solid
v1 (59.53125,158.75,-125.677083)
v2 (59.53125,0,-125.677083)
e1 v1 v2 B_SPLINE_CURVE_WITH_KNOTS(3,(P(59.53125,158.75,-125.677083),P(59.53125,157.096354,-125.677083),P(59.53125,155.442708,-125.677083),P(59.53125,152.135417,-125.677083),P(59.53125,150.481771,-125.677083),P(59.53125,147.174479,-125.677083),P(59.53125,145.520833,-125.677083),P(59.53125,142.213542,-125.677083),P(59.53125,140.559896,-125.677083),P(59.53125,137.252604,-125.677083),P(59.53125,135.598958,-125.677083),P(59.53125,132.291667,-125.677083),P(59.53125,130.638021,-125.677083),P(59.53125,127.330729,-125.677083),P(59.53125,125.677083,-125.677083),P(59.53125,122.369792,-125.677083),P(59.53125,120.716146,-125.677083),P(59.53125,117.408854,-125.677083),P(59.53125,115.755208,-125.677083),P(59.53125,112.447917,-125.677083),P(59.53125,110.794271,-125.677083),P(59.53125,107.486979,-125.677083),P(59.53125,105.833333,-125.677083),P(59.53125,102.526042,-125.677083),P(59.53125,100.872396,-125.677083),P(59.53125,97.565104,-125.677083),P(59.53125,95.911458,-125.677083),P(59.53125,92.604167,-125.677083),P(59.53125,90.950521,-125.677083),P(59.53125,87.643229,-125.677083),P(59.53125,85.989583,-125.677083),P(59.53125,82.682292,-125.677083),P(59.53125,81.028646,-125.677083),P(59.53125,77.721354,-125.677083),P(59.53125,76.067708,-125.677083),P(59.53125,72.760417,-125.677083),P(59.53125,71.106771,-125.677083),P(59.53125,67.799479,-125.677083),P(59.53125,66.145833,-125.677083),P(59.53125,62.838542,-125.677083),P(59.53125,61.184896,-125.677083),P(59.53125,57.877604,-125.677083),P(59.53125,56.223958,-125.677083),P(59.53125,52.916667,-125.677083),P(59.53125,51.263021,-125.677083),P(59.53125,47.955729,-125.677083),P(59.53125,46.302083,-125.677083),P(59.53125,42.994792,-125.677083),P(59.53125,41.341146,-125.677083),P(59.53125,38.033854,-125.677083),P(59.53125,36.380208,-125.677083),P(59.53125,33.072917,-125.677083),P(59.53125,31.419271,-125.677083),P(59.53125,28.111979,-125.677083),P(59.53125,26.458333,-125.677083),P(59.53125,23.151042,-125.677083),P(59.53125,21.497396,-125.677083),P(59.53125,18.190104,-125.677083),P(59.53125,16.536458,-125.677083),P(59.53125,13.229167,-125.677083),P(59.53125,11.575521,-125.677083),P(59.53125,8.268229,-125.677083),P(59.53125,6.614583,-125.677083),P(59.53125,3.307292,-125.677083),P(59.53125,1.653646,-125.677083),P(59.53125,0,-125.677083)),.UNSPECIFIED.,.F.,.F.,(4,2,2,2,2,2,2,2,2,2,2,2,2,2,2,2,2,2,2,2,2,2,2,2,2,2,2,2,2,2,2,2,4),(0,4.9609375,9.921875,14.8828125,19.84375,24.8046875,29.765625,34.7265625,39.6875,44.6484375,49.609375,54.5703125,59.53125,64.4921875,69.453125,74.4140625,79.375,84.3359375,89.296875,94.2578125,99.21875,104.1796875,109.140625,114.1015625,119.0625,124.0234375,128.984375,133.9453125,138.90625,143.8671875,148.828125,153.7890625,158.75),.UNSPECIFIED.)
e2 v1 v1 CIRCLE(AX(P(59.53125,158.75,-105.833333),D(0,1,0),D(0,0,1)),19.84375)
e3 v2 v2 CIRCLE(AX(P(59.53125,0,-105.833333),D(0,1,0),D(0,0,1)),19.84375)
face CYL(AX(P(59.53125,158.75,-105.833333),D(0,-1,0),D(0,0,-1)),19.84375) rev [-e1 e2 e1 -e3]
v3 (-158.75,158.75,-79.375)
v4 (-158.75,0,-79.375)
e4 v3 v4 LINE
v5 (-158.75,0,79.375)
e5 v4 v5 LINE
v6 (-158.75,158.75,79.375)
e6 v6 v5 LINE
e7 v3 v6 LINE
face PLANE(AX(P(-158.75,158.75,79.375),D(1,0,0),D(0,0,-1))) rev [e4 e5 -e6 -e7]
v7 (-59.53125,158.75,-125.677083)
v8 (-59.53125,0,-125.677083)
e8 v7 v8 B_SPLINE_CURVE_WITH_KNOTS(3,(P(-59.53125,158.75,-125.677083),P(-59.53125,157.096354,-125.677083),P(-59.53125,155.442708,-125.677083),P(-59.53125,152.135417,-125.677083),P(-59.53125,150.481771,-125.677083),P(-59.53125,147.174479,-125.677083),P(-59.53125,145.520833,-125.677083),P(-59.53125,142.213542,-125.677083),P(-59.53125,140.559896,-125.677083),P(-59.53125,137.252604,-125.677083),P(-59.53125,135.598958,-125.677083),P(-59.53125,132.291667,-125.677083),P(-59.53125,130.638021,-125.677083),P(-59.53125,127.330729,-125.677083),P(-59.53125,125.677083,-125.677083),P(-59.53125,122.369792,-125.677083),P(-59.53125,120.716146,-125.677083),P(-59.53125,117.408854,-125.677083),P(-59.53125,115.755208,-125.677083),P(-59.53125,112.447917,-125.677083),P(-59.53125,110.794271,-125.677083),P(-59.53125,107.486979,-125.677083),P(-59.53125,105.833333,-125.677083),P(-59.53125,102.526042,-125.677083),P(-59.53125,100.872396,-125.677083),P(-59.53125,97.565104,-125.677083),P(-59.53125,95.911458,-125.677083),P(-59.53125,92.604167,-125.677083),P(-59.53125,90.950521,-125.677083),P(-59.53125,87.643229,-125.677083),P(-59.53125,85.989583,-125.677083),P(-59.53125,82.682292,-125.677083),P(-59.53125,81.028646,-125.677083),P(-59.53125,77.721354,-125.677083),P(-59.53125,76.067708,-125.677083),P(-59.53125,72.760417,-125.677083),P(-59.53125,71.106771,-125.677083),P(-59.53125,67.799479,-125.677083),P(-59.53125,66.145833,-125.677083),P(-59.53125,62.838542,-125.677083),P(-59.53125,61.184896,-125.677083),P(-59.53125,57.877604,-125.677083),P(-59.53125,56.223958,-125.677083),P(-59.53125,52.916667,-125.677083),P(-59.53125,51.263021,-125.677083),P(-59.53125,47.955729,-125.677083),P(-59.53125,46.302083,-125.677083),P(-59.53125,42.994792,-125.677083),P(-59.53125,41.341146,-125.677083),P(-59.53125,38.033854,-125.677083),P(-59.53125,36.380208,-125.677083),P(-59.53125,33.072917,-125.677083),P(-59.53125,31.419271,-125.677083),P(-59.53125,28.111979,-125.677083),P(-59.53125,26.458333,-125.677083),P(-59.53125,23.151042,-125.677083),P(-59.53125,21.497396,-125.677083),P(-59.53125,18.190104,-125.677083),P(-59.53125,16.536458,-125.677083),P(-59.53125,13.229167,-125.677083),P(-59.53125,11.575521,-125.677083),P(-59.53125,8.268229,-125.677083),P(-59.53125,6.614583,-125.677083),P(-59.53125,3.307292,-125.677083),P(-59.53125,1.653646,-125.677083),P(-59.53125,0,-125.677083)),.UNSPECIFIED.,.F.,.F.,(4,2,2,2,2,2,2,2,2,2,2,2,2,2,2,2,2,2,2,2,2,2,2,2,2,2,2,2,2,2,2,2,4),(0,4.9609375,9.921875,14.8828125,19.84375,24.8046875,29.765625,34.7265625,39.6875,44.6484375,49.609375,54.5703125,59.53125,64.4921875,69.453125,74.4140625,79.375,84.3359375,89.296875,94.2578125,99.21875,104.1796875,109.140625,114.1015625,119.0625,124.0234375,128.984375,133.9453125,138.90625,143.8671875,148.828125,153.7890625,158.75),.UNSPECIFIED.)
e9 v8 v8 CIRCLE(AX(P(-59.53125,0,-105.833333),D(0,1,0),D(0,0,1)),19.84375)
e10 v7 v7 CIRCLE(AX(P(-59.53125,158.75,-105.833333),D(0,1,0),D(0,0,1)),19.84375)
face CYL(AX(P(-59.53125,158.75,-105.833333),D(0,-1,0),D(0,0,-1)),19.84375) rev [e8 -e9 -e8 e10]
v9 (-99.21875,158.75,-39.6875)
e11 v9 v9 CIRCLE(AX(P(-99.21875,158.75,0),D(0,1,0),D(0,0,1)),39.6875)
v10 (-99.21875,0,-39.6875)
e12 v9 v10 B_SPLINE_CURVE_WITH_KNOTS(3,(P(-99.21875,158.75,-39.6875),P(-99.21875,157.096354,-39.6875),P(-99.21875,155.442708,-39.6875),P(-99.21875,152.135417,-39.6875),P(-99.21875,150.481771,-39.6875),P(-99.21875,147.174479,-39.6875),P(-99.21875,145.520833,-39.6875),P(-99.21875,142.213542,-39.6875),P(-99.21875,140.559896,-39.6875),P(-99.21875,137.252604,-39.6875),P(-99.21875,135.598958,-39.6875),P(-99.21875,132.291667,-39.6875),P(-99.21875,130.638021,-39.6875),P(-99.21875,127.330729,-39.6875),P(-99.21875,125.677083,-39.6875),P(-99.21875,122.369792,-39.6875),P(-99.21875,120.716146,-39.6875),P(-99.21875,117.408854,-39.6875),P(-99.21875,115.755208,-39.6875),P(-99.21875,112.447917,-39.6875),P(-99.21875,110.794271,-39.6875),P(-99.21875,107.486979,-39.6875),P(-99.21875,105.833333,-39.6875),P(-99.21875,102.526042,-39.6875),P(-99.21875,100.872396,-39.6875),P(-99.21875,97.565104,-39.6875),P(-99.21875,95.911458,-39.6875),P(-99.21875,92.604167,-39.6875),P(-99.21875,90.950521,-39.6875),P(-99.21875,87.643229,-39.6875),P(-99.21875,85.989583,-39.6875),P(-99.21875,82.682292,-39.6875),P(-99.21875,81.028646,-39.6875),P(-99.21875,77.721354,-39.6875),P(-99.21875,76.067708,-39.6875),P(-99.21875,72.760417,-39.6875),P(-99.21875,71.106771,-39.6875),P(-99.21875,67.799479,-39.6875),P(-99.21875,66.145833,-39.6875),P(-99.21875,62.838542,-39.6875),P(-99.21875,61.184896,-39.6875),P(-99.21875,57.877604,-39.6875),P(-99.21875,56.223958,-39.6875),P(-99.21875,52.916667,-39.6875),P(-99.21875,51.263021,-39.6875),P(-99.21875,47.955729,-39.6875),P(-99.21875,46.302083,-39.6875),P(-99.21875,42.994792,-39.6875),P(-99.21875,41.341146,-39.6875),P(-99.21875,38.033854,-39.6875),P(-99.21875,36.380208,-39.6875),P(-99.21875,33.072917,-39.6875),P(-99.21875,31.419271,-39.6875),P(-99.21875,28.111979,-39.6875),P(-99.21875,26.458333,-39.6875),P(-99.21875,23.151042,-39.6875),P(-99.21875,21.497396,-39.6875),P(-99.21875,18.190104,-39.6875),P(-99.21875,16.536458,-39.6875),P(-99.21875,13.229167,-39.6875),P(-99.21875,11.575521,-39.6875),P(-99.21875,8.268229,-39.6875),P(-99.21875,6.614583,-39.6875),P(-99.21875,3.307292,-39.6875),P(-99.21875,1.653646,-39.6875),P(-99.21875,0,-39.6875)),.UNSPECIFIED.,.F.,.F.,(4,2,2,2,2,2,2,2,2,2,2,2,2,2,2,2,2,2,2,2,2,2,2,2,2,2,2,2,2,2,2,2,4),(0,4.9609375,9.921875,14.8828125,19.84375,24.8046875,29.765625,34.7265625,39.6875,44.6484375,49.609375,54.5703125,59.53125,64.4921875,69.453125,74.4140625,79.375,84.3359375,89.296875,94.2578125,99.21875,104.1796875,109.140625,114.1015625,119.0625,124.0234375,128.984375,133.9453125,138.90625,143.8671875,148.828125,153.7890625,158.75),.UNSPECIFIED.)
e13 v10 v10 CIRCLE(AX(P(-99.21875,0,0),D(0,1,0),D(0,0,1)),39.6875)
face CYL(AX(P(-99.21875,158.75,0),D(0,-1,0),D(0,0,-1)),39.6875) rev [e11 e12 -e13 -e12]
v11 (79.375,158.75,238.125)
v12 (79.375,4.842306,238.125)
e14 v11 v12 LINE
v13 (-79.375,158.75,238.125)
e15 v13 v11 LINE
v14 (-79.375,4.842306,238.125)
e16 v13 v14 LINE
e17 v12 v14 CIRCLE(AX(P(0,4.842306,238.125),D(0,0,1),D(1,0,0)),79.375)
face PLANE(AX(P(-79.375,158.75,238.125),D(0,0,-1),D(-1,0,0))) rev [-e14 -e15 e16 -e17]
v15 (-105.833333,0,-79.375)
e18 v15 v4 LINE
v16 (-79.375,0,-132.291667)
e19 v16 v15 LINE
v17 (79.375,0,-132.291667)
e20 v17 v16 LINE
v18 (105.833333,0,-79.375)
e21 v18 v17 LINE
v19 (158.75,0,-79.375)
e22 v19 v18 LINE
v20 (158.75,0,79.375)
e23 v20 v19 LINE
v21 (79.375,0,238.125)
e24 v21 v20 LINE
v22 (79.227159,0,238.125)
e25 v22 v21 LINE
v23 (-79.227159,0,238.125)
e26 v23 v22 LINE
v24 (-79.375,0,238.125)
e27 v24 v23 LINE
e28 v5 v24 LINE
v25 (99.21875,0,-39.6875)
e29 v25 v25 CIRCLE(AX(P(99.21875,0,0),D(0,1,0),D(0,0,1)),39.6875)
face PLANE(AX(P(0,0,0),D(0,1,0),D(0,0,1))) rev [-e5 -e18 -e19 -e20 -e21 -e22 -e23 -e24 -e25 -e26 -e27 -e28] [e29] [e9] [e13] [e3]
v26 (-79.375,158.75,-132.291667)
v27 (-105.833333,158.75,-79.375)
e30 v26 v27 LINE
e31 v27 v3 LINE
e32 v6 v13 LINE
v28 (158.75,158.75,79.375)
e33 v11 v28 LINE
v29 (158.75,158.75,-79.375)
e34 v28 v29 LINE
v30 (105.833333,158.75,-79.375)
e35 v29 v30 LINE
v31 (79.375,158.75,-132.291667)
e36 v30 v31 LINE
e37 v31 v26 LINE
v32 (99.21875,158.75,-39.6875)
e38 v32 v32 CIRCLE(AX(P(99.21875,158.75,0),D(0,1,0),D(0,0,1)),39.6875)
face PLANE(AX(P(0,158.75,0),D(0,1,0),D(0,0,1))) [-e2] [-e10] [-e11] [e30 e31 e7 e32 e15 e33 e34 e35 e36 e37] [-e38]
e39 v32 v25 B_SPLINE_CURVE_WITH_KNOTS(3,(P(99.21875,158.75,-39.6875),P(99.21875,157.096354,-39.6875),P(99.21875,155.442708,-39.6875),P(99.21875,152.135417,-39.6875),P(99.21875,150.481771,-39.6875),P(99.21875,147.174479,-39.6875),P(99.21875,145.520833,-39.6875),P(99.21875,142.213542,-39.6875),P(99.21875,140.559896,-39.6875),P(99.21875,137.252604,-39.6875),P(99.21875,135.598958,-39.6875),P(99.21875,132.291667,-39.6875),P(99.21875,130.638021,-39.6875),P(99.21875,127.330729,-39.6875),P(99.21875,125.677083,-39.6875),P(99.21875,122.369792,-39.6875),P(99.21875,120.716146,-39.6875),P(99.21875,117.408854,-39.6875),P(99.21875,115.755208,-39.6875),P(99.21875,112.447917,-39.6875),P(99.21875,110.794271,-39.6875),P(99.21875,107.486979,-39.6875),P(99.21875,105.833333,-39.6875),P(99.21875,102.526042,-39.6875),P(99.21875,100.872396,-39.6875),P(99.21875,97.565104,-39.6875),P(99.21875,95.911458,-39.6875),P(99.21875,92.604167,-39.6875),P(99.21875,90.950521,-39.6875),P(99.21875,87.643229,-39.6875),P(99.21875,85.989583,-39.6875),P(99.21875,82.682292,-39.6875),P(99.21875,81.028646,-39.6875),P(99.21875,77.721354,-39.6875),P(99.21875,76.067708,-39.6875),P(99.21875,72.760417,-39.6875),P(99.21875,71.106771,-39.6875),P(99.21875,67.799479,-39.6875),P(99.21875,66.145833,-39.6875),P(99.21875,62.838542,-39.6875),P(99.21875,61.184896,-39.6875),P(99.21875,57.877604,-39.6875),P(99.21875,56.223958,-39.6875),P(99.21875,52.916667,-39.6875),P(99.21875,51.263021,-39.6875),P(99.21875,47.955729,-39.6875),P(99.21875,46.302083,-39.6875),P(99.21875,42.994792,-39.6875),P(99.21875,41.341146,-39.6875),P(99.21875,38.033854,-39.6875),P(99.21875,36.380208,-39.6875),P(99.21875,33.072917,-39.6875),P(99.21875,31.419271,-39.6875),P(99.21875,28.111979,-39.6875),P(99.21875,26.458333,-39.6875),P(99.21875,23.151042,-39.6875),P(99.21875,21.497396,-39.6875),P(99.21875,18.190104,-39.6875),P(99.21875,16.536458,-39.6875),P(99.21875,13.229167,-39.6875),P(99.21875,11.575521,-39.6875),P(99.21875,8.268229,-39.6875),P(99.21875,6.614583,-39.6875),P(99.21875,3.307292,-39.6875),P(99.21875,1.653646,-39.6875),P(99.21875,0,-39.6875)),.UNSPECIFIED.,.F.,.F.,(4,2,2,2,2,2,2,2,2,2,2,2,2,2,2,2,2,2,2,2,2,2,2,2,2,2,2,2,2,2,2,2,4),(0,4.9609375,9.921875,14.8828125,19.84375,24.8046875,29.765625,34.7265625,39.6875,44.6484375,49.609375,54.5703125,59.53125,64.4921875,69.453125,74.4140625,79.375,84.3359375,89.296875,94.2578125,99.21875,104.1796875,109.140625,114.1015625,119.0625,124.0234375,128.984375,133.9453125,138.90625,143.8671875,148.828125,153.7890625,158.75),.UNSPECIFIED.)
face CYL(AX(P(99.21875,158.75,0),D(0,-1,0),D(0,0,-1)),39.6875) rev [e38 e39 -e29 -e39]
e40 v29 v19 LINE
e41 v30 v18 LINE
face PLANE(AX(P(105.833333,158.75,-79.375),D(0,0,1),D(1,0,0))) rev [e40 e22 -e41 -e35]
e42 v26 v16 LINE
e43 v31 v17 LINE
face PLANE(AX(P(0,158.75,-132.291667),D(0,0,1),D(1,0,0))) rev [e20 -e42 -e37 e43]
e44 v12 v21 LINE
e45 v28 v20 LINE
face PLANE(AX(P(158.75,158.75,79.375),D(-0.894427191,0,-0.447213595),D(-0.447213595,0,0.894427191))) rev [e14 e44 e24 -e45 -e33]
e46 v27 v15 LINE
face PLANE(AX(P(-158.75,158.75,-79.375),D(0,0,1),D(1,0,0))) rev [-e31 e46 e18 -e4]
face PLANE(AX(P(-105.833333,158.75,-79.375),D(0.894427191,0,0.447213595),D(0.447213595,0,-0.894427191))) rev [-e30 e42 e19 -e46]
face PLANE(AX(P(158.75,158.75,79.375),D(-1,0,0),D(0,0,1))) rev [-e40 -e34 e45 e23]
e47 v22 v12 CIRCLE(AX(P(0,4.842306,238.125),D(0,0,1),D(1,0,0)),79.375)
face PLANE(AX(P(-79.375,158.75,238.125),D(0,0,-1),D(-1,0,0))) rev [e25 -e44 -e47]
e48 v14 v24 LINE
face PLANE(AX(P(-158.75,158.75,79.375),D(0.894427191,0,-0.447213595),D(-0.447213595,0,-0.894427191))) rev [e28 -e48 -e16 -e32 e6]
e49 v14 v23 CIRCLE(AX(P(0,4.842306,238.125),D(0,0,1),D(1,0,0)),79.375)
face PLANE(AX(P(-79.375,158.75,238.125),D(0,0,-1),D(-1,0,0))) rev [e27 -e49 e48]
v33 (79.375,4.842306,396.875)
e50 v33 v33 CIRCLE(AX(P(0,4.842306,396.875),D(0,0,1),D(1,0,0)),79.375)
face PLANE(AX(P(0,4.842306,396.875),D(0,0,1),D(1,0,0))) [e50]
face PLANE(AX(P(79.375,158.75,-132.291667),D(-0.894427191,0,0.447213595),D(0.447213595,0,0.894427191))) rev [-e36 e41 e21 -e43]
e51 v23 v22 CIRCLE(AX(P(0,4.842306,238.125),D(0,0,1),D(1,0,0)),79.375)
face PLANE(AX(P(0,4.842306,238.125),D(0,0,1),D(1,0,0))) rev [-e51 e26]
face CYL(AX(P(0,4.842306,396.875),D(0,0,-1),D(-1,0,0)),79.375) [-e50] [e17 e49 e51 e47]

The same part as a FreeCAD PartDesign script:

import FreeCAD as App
import Part
import Sketcher
Q = App.Units.Quantity


def add_polygon(sketch, points):
    """Adds a closed chain of lines whose ends are joined by coincident constraints."""
    first, n = sketch.GeometryCount, len(points)
    for a, b in zip(points, points[1:] + points[:1]):
        sketch.addGeometry(Part.LineSegment(App.Vector(*a, 0), App.Vector(*b, 0)), False)
    for i in range(n):
        sketch.addConstraint(Sketcher.Constraint("Coincident", first + i, 2, first + (i + 1) % n, 1))

doc = App.newDocument("Part")
body = doc.addObject("PartDesign::Body", "Body")

sketch1 = doc.addObject("Sketcher::SketchObject", "Sketch")
body.addObject(sketch1)
sketch1.AttachmentSupport = (doc.XZ_Plane, [""])
sketch1.MapMode = "FlatFace"
add_polygon(sketch1, [(79, 238), (159, 79), (159, -79), (106, -79), (79, -132), (-79, -132), (-106, -79), (-159, -79), (-159, 79), (-79, 238)])
sketch1.addGeometry(Part.Circle(App.Vector(99, 0, 0), App.Vector(0, 0, 1), 40), False)
sketch1.addGeometry(Part.Circle(App.Vector(-99, 0, 0), App.Vector(0, 0, 1), 40), False)
sketch1.addGeometry(Part.Circle(App.Vector(60, -106, 0), App.Vector(0, 0, 1), 20), False)
sketch1.addGeometry(Part.Circle(App.Vector(-60, -106, 0), App.Vector(0, 0, 1), 20), False)
sketch1.addConstraint([
    Sketcher.Constraint("Vertical", 1),
    Sketcher.Constraint("Horizontal", 2),
    Sketcher.Constraint("Horizontal", 4),
    Sketcher.Constraint("Horizontal", 6),
    Sketcher.Constraint("Vertical", 7),
    Sketcher.Constraint("Horizontal", 9),
    Sketcher.Constraint("Equal", 10, 11),
    Sketcher.Constraint("Equal", 12, 13),
    Sketcher.Constraint("Symmetric", 10, 3, 11, 3, -1, 1),
    Sketcher.Constraint("Symmetric", 0, 2, 6, 2, -1, 1),
    Sketcher.Constraint("Symmetric", 12, 3, 13, 3, -2),
    Sketcher.Constraint("Symmetric", 2, 2, 5, 2, -2),
    Sketcher.Constraint("PointOnObject", 10, 3, -1),
    Sketcher.Constraint("Parallel", 0, 5),
    Sketcher.Constraint("Parallel", 3, 8),
    Sketcher.Constraint("Horizontal", 0, 2, 7, 2),
    Sketcher.Constraint("Vertical", 4, 2, 8, 2),
    Sketcher.Constraint("Vertical", 3, 2, 9, 2),
    Sketcher.Constraint("Equal", 9, 1),
    Sketcher.Constraint("Diameter", 10, Q("3.125 in")),
    Sketcher.Constraint("Diameter", 12, Q("1.5625 in")),
    Sketcher.Constraint("DistanceX", 4, 2, 4, 1, Q("6.25 in")),
    Sketcher.Constraint("DistanceY", 5, 2, 8, 2, Q("12.5 in")),
    Sketcher.Constraint("DistanceX", -1, 1, 0, 2, Q("6.25 in")),
    Sketcher.Constraint("DistanceX", 11, 3, 12, 3, Q("6.25 in")),
    Sketcher.Constraint("DistanceX", -1, 1, 10, 3, Q("3.90625 in")),
    Sketcher.Constraint("Distance", 3, 59.162632),
    Sketcher.Constraint("DistanceY", 12, 3, -1, 1, 105.833333),
])
pad1 = doc.addObject("PartDesign::Pad", "Pad")
body.addObject(pad1)
pad1.Profile = sketch1
pad1.Length = Q("6.25 in")
pad1.Reversed = True

sketch2 = doc.addObject("Sketcher::SketchObject", "Sketch001")
body.addObject(sketch2)
sketch2.AttachmentSupport = (doc.XY_Plane, [""])
sketch2.MapMode = "FlatFace"
sketch2.AttachmentOffset = App.Placement(App.Vector(0, 0, 9.375 * 25.4), App.Rotation())
sketch2.addGeometry(Part.Circle(App.Vector(0, 5, 0), App.Vector(0, 0, 1), 79), False)
sketch2.addConstraint([
    Sketcher.Constraint("PointOnObject", 0, 3, -2),
    Sketcher.Constraint("Diameter", 0, Q("6.25 in")),
    Sketcher.Constraint("DistanceY", -1, 1, 0, 3, 4.842306),
])
pad2 = doc.addObject("PartDesign::Pad", "Pad001")
body.addObject(pad2)
pad2.Profile = sketch2
pad2.Length = Q("6.25 in")

doc.recompute()
